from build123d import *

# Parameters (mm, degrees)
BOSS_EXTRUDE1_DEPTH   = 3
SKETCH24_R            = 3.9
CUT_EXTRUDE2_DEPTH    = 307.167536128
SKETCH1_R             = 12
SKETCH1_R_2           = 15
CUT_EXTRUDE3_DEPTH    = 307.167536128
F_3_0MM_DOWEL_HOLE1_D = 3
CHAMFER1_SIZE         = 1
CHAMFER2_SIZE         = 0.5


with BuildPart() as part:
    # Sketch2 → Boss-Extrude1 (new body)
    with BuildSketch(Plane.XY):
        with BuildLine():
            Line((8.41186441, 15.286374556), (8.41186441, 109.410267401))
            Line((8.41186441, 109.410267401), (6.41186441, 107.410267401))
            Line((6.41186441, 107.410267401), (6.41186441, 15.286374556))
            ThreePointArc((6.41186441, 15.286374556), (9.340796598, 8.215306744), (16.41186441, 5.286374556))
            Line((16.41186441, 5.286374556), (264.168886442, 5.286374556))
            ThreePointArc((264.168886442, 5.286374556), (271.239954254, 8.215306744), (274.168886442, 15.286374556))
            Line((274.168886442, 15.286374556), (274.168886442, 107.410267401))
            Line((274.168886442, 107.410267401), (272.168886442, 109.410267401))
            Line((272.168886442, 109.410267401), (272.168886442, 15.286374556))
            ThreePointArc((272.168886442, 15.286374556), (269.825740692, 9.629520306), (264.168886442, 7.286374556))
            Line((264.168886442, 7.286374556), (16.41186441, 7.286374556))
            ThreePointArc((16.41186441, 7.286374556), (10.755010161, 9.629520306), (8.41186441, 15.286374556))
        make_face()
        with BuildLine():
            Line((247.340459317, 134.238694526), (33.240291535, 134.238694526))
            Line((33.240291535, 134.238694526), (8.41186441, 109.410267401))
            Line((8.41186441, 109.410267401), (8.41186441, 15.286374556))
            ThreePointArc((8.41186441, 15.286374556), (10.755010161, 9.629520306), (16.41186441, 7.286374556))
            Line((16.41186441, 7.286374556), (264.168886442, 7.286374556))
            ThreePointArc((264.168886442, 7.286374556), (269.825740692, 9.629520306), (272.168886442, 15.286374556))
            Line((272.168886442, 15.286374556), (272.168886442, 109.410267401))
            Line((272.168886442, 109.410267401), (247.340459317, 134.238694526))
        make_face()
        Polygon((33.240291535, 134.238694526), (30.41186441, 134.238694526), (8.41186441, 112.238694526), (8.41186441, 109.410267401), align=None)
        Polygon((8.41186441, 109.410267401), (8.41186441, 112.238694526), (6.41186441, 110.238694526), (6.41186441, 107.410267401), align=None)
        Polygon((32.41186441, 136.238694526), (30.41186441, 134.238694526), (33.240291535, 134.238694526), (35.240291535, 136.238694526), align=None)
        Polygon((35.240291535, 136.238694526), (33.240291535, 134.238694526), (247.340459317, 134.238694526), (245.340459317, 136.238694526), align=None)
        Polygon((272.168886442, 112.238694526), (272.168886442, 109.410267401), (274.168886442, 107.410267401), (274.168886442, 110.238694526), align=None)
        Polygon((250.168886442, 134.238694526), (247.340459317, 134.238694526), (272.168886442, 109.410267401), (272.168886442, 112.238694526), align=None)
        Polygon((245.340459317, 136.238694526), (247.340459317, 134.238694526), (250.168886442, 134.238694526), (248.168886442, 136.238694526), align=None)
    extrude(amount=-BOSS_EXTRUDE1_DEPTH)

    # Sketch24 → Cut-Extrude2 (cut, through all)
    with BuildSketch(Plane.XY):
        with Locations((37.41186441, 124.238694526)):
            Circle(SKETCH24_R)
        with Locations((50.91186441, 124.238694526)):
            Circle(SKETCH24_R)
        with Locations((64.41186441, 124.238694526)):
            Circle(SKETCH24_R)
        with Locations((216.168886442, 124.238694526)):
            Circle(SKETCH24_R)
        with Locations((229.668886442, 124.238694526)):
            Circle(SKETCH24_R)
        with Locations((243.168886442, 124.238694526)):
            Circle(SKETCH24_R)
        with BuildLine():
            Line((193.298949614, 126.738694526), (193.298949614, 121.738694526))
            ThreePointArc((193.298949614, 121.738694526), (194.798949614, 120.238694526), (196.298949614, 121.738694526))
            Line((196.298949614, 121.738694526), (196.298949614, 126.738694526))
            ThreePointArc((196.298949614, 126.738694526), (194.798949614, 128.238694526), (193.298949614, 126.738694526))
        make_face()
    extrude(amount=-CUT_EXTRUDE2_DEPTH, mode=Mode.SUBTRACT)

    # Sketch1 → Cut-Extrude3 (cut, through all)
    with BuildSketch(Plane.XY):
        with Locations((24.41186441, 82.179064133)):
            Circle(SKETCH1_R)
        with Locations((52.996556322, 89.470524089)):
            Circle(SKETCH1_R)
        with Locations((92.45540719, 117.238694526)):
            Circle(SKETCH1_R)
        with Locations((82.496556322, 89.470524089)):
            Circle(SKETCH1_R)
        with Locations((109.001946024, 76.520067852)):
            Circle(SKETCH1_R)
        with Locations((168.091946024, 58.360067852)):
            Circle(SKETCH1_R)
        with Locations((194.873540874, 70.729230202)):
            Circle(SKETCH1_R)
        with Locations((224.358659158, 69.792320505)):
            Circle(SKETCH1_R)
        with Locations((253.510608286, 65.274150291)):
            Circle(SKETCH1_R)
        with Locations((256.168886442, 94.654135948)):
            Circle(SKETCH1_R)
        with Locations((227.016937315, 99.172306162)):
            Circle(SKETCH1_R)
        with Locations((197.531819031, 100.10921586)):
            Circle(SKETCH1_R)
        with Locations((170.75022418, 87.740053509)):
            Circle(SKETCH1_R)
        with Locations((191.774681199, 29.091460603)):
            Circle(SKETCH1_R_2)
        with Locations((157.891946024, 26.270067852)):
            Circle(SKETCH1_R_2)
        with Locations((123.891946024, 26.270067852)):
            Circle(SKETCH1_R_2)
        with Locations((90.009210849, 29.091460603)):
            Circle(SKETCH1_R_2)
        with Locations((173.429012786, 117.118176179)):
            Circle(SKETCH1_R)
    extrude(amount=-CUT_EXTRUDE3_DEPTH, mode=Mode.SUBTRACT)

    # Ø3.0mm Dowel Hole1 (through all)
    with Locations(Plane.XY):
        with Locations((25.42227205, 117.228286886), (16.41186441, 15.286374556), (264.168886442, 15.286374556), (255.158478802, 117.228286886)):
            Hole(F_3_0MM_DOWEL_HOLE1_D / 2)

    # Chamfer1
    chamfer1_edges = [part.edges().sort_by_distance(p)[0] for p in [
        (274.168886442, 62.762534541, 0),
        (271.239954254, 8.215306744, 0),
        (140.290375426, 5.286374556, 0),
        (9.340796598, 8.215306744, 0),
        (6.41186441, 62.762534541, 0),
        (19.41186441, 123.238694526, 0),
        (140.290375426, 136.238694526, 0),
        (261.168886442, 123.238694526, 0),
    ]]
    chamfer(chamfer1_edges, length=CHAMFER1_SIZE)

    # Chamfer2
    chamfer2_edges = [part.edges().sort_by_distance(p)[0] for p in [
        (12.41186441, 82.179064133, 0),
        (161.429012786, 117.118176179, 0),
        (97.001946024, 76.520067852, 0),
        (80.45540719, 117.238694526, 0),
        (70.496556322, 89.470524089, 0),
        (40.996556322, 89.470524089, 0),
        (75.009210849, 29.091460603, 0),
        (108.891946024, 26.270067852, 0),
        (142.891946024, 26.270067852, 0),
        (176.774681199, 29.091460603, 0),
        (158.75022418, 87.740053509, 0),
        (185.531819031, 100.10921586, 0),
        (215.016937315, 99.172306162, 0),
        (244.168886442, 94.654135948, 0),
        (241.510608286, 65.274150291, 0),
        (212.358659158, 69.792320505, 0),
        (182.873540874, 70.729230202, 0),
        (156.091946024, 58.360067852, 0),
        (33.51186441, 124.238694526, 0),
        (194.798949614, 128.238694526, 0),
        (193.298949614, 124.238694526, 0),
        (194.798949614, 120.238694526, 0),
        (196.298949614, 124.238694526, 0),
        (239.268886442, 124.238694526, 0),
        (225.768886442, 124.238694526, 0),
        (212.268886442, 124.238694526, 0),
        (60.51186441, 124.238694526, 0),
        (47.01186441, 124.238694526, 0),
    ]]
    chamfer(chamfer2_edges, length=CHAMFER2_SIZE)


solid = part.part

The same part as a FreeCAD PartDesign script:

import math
import FreeCAD as App
import Part
import Sketcher

V = App.Vector
Q = App.Units.Quantity


def edges_at(feature, points):
    """Names of the edges that pass closest to the given points."""
    edges = feature.Shape.Edges
    near = lambda p: min(range(len(edges)), key=lambda i: edges[i].distToShape(Part.Vertex(*p))[0])
    return sorted({f"Edge{near(p) + 1}" for p in points})

doc = App.newDocument("Part")
body = doc.addObject("PartDesign::Body", "Body")

# Sketch on XY plane
sketch1 = doc.addObject("Sketcher::SketchObject", "Sketch")
body.addObject(sketch1)
sketch1.AttachmentSupport = (doc.XY_Plane, [""])
sketch1.MapMode = "FlatFace"
sketch1.addGeometry([
    Part.ArcOfCircle(Part.Circle(V(16, 15, 0), V(0, 0, 1), 10), math.radians(180), math.radians(270)),  # 0
    Part.LineSegment(V(16, 5, 0), V(264, 5, 0)),  # 1
    Part.ArcOfCircle(Part.Circle(V(264, 15, 0), V(0, 0, 1), 10), math.radians(-90), math.radians(0)),  # 2
    Part.LineSegment(V(274, 15, 0), V(274, 110, 0)),  # 3
    Part.LineSegment(V(274, 110, 0), V(248, 136, 0)),  # 4
    Part.LineSegment(V(248, 136, 0), V(32, 136, 0)),  # 5
    Part.LineSegment(V(32, 136, 0), V(6, 110, 0)),  # 6
    Part.LineSegment(V(6, 110, 0), V(6, 15, 0)),  # 7
], False)
sketch1.addConstraint([
    Sketcher.Constraint("Tangent", 0, 2, 1, 1),
    Sketcher.Constraint("Tangent", 1, 2, 2, 1),
    Sketcher.Constraint("Tangent", 2, 2, 3, 1),
    Sketcher.Constraint("Coincident", 3, 2, 4, 1),
    Sketcher.Constraint("Coincident", 4, 2, 5, 1),
    Sketcher.Constraint("Coincident", 5, 2, 6, 1),
    Sketcher.Constraint("Coincident", 6, 2, 7, 1),
    Sketcher.Constraint("Tangent", 7, 2, 0, 1),
    Sketcher.Constraint("Horizontal", 1),
    Sketcher.Constraint("Vertical", 3),
    Sketcher.Constraint("Horizontal", 5),
    Sketcher.Constraint("Vertical", 7),
    Sketcher.Constraint("Equal", 0, 2),
    Sketcher.Constraint("Perpendicular", 4, 6),
    Sketcher.Constraint("Horizontal", 3, 2, 6, 2),
    Sketcher.Constraint("Equal", 4, 6),
    Sketcher.Constraint("Radius", 0, Q("10 mm")),
    Sketcher.Constraint("DistanceX", 4, 2, 3, 2, Q("26 mm")),
    Sketcher.Constraint("DistanceY", 3, 1, 3, 2, Q("94.95232 mm")),
    Sketcher.Constraint("DistanceX", 1, 1, 1, 2, Q("247.757022 mm")),
    Sketcher.Constraint("DistanceX", -1, 1, 0, 3, Q("16.411864 mm")),
    Sketcher.Constraint("DistanceY", -1, 1, 0, 3, Q("15.286375 mm")),
])
pad1 = doc.addObject("PartDesign::Pad", "Pad")
body.addObject(pad1)
pad1.Profile = sketch1
pad1.Length = 3
pad1.Reversed = True

# Sketch on XY plane
sketch2 = doc.addObject("Sketcher::SketchObject", "Sketch001")
body.addObject(sketch2)
sketch2.AttachmentSupport = (doc.XY_Plane, [""])
sketch2.MapMode = "FlatFace"
sketch2.addGeometry([
    Part.Circle(V(37.4, 124.2, 0), V(0, 0, 1), 3.9),  # 0
    Part.Circle(V(50.9, 124.2, 0), V(0, 0, 1), 3.9),  # 1
    Part.Circle(V(64.4, 124.2, 0), V(0, 0, 1), 3.9),  # 2
    Part.Circle(V(216.2, 124.2, 0), V(0, 0, 1), 3.9),  # 3
    Part.Circle(V(229.7, 124.2, 0), V(0, 0, 1), 3.9),  # 4
    Part.Circle(V(243.2, 124.2, 0), V(0, 0, 1), 3.9),  # 5
    Part.LineSegment(V(193.3, 126.7, 0), V(193.3, 121.7, 0)),  # 6
    Part.ArcOfCircle(Part.Circle(V(194.8, 121.7, 0), V(0, 0, 1), 1.5), math.radians(180), math.radians(360)),  # 7
    Part.LineSegment(V(196.3, 121.7, 0), V(196.3, 126.7, 0)),  # 8
    Part.ArcOfCircle(Part.Circle(V(194.8, 126.7, 0), V(0, 0, 1), 1.5), math.radians(0), math.radians(180)),  # 9
], False)
sketch2.addConstraint([
    Sketcher.Constraint("Tangent", 6, 2, 7, 1),
    Sketcher.Constraint("Tangent", 7, 2, 8, 1),
    Sketcher.Constraint("Tangent", 8, 2, 9, 1),
    Sketcher.Constraint("Tangent", 9, 2, 6, 1),
    Sketcher.Constraint("Vertical", 6),
    Sketcher.Constraint("Vertical", 8),
    Sketcher.Constraint("Equal", 0, 1),
    Sketcher.Constraint("Equal", 1, 2),
    Sketcher.Constraint("Equal", 2, 3),
    Sketcher.Constraint("Equal", 3, 4),
    Sketcher.Constraint("Equal", 4, 5),
    Sketcher.Constraint("Horizontal", 0, 3, 1, 3),
    Sketcher.Constraint("Horizontal", 1, 3, 2, 3),
    Sketcher.Constraint("Horizontal", 2, 3, 3, 3),
    Sketcher.Constraint("Horizontal", 3, 3, 4, 3),
    Sketcher.Constraint("Horizontal", 4, 3, 5, 3),
    Sketcher.Constraint("Diameter", 0, Q("7.8 mm")),
    Sketcher.Constraint("Radius", 7, Q("1.5 mm")),
    Sketcher.Constraint("DistanceY", 6, 2, 6, 1, Q("5 mm")),
    Sketcher.Constraint("DistanceX", 0, 3, 2, 3, Q("27 mm")),
    Sketcher.Constraint("DistanceX", 3, 3, 5, 3, Q("27 mm")),
    Sketcher.Constraint("DistanceX", 0, 3, 1, 3, Q("13.5 mm")),
    Sketcher.Constraint("DistanceX", 3, 3, 4, 3, Q("13.5 mm")),
    Sketcher.Constraint("DistanceY", 7, 3, 3, 3, Q("2.5 mm")),
    Sketcher.Constraint("DistanceX", -1, 1, 7, 3, Q("194.79895 mm")),
    Sketcher.Constraint("DistanceX", -1, 1, 0, 3, Q("37.411864 mm")),
    Sketcher.Constraint("DistanceY", -1, 1, 0, 3, Q("124.238695 mm")),
    Sketcher.Constraint("DistanceX", -1, 1, 3, 3, Q("216.168886 mm")),
])
pocket1 = doc.addObject("PartDesign::Pocket", "Pocket")
body.addObject(pocket1)
pocket1.Profile = sketch2
pocket1.Type = "ThroughAll"

# Sketch on XY plane
sketch3 = doc.addObject("Sketcher::SketchObject", "Sketch002")
body.addObject(sketch3)
sketch3.AttachmentSupport = (doc.XY_Plane, [""])
sketch3.MapMode = "FlatFace"
sketch3.addGeometry([
    Part.Circle(V(24, 82, 0), V(0, 0, 1), 12),  # 0
    Part.Circle(V(53, 89, 0), V(0, 0, 1), 12),  # 1
    Part.Circle(V(92, 117, 0), V(0, 0, 1), 12),  # 2
    Part.Circle(V(82, 89, 0), V(0, 0, 1), 12),  # 3
    Part.Circle(V(109, 77, 0), V(0, 0, 1), 12),  # 4
    Part.Circle(V(168, 58, 0), V(0, 0, 1), 12),  # 5
    Part.Circle(V(195, 71, 0), V(0, 0, 1), 12),  # 6
    Part.Circle(V(224, 70, 0), V(0, 0, 1), 12),  # 7
    Part.Circle(V(254, 65, 0), V(0, 0, 1), 12),  # 8
    Part.Circle(V(256, 95, 0), V(0, 0, 1), 12),  # 9
    Part.Circle(V(227, 99, 0), V(0, 0, 1), 12),  # 10
    Part.Circle(V(198, 100, 0), V(0, 0, 1), 12),  # 11
    Part.Circle(V(171, 88, 0), V(0, 0, 1), 12),  # 12
    Part.Circle(V(192, 29, 0), V(0, 0, 1), 15),  # 13
    Part.Circle(V(158, 26, 0), V(0, 0, 1), 15),  # 14
    Part.Circle(V(124, 26, 0), V(0, 0, 1), 15),  # 15
    Part.Circle(V(90, 29, 0), V(0, 0, 1), 15),  # 16
    Part.Circle(V(173, 117, 0), V(0, 0, 1), 12),  # 17
], False)
sketch3.addConstraint([
    Sketcher.Constraint("Equal", 0, 1),
    Sketcher.Constraint("Equal", 1, 2),
    Sketcher.Constraint("Equal", 2, 3),
    Sketcher.Constraint("Equal", 3, 4),
    Sketcher.Constraint("Equal", 4, 5),
    Sketcher.Constraint("Equal", 5, 6),
    Sketcher.Constraint("Equal", 6, 7),
    Sketcher.Constraint("Equal", 7, 8),
    Sketcher.Constraint("Equal", 8, 9),
    Sketcher.Constraint("Equal", 9, 10),
    Sketcher.Constraint("Equal", 10, 11),
    Sketcher.Constraint("Equal", 11, 12),
    Sketcher.Constraint("Equal", 13, 14),
    Sketcher.Constraint("Equal", 14, 15),
    Sketcher.Constraint("Equal", 15, 16),
    Sketcher.Constraint("Equal", 12, 17),
    Sketcher.Constraint("Horizontal", 1, 3, 3, 3),
    Sketcher.Constraint("Horizontal", 14, 3, 15, 3),
    Sketcher.Constraint("Horizontal", 13, 3, 16, 3),
    Sketcher.Constraint("Diameter", 0, Q("24 mm")),
    Sketcher.Constraint("Diameter", 13, Q("30 mm")),
    Sketcher.Constraint("DistanceX", 15, 3, 14, 3, Q("34 mm")),
    Sketcher.Constraint("DistanceX", 1, 3, 3, 3, Q("29.5 mm")),
    Sketcher.Constraint("DistanceX", 14, 3, 5, 3, Q("10.2 mm")),
    Sketcher.Constraint("DistanceX", 4, 3, 5, 3, Q("59.09 mm")),
    Sketcher.Constraint("DistanceY", 5, 3, 4, 3, Q("18.16 mm")),
    Sketcher.Constraint("DistanceY", 14, 3, 5, 3, Q("32.09 mm")),
    Sketcher.Constraint("DistanceX", 2, 3, 8, 3, Q("161.055201 mm")),
    Sketcher.Constraint("DistanceX", -1, 1, 6, 3, Q("194.873541 mm")),
    Sketcher.Constraint("DistanceY", -1, 1, 6, 3, Q("70.72923 mm")),
    Sketcher.Constraint("DistanceX", -1, 1, 7, 3, Q("224.358659 mm")),
    Sketcher.Constraint("DistanceY", -1, 1, 7, 3, Q("69.792321 mm")),
    Sketcher.Constraint("DistanceX", -1, 1, 8, 3, Q("253.510608 mm")),
    Sketcher.Constraint("DistanceY", -1, 1, 8, 3, Q("65.27415 mm")),
    Sketcher.Constraint("DistanceX", -1, 1, 11, 3, Q("197.531819 mm")),
    Sketcher.Constraint("DistanceX", -1, 1, 13, 3, Q("191.774681 mm")),
    Sketcher.Constraint("DistanceY", -1, 1, 13, 3, Q("29.091461 mm")),
    Sketcher.Constraint("DistanceX", -1, 1, 16, 3, Q("90.009211 mm")),
    Sketcher.Constraint("DistanceX", 0, 3, 1, 3, Q("28.584692 mm")),
    Sketcher.Constraint("DistanceY", 0, 3, 1, 3, Q("7.29146 mm")),
    Sketcher.Constraint("DistanceX", 1, 3, 2, 3, Q("39.458851 mm")),
    Sketcher.Constraint("DistanceY", 1, 3, 2, 3, Q("27.76817 mm")),
    Sketcher.Constraint("DistanceX", 3, 3, 4, 3, Q("26.50539 mm")),
    Sketcher.Constraint("DistanceX", 8, 3, 9, 3, Q("2.658278 mm")),
    Sketcher.Constraint("DistanceY", 5, 3, 9, 3, Q("36.294068 mm")),
    Sketcher.Constraint("DistanceX", 7, 3, 10, 3, Q("2.658278 mm")),
    Sketcher.Constraint("DistanceY", 9, 3, 10, 3, Q("4.51817 mm")),
    Sketcher.Constraint("DistanceY", 10, 3, 11, 3, Q("0.93691 mm")),
    Sketcher.Constraint("DistanceX", 5, 3, 12, 3, Q("2.658278 mm")),
    Sketcher.Constraint("DistanceX", 12, 3, 17, 3, Q("2.678789 mm")),
    Sketcher.Constraint("DistanceY", 11, 3, 17, 3, Q("17.00896 mm")),
    Sketcher.Constraint("DistanceY", -1, 1, 0, 3, Q("82.179064 mm")),
    Sketcher.Constraint("DistanceY", -1, 1, 4, 3, Q("76.520068 mm")),
    Sketcher.Constraint("DistanceY", -1, 1, 12, 3, Q("87.740054 mm")),
])
pocket2 = doc.addObject("PartDesign::Pocket", "Pocket001")
body.addObject(pocket2)
pocket2.Profile = sketch3
pocket2.Type = "ThroughAll"

# Sketch on XY plane
sketch4 = doc.addObject("Sketcher::SketchObject", "Sketch003")
body.addObject(sketch4)
sketch4.AttachmentSupport = (doc.XY_Plane, [""])
sketch4.MapMode = "FlatFace"
sketch4.addGeometry([
    Part.Circle(V(25.4, 117.2, 0), V(0, 0, 1), 1.5),
    Part.Circle(V(16.4, 15.3, 0), V(0, 0, 1), 1.5),
    Part.Circle(V(264.2, 15.3, 0), V(0, 0, 1), 1.5),
    Part.Circle(V(255.2, 117.2, 0), V(0, 0, 1), 1.5),
], False)
sketch4.addConstraint([
    Sketcher.Constraint("Equal", 0, 1),
    Sketcher.Constraint("Equal", 1, 2),
    Sketcher.Constraint("Equal", 2, 3),
    Sketcher.Constraint("Horizontal", 1, 3, 2, 3),
    Sketcher.Constraint("Horizontal", 0, 3, 3, 3),
    Sketcher.Constraint("Diameter", 0, Q("3 mm")),
    Sketcher.Constraint("DistanceX", -1, 1, 3, 3, Q("255.158479 mm")),
    Sketcher.Constraint("DistanceX", -1, 1, 0, 3, Q("25.422272 mm")),
    Sketcher.Constraint("DistanceY", -1, 1, 0, 3, Q("117.228287 mm")),
    Sketcher.Constraint("DistanceX", -1, 1, 1, 3, Q("16.411864 mm")),
    Sketcher.Constraint("DistanceY", -1, 1, 1, 3, Q("15.286375 mm")),
    Sketcher.Constraint("DistanceX", -1, 1, 2, 3, Q("264.168886 mm")),
])
doc.recompute()
hole = doc.addObject("PartDesign::Hole", "Hole")
body.addObject(hole)
hole.Profile = sketch4
hole.ThreadType = "None"
hole.Diameter = 3
hole.DepthType = "ThroughAll"
doc.recompute()

chamfer = doc.addObject("PartDesign::Chamfer", "Chamfer")
body.addObject(chamfer)
chamfer.Base = (hole, edges_at(hole, [
    (274.169, 62.763, 0),
    (271.24, 8.215, 0),
    (140.29, 5.286, 0),
    (9.341, 8.215, 0),
    (6.412, 62.763, 0),
    (19.412, 123.239, 0),
    (140.29, 136.239, 0),
    (261.169, 123.239, 0),
]))
chamfer.Size = 1
doc.recompute()

chamfer2 = doc.addObject("PartDesign::Chamfer", "Chamfer001")
body.addObject(chamfer2)
chamfer2.Base = (chamfer, edges_at(chamfer, [
    (12.412, 82.179, 0),
    (161.429, 117.118, 0),
    (97.002, 76.52, 0),
    (80.455, 117.239, 0),
    (70.497, 89.471, 0),
    (40.997, 89.471, 0),
    (75.009, 29.091, 0),
    (108.892, 26.27, 0),
    (142.892, 26.27, 0),
    (176.775, 29.091, 0),
    (158.75, 87.74, 0),
    (185.532, 100.109, 0),
    (215.017, 99.172, 0),
    (244.169, 94.654, 0),
    (241.511, 65.274, 0),
    (212.359, 69.792, 0),
    (182.874, 70.729, 0),
    (156.092, 58.36, 0),
    (33.512, 124.239, 0),
    (194.799, 128.239, 0),
    (193.299, 124.239, 0),
    (194.799, 120.239, 0),
    (196.299, 124.239, 0),
    (239.269, 124.239, 0),
    (225.769, 124.239, 0),
    (212.269, 124.239, 0),
    (60.512, 124.239, 0),
    (47.012, 124.239, 0),
]))
chamfer2.Size = 0.5

doc.recompute()
